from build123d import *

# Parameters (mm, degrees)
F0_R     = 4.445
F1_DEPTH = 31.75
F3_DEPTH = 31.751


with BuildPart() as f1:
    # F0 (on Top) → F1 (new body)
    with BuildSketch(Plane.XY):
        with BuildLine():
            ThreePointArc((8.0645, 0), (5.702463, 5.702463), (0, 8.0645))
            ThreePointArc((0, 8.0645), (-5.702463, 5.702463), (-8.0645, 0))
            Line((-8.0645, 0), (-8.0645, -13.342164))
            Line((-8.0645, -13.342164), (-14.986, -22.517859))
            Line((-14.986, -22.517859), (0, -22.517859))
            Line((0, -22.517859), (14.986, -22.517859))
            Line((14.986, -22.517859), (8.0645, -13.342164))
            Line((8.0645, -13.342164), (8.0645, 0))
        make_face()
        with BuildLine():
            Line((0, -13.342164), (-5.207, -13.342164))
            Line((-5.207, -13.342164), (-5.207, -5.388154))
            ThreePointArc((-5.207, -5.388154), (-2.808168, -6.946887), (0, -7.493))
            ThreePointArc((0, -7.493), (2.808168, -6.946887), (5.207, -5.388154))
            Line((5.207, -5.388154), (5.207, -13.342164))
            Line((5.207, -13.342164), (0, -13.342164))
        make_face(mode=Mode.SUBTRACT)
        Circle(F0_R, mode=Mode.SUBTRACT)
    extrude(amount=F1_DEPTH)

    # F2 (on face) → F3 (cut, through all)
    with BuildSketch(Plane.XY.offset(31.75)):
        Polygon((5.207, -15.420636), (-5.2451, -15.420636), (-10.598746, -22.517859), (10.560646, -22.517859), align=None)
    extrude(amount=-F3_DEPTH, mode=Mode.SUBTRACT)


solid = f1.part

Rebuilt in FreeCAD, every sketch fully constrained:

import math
import FreeCAD as App
import Part
import Sketcher
from FreeCAD import Vector
Q = App.Units.Quantity

doc = App.newDocument("Part")
params = doc.addObject("Spreadsheet::Sheet", "Params")
for row, (alias, value) in enumerate([
    ("sketch1_diameter", "0.35 in"),
    ("sketch1_radius", "0.2950001 in"),
    ("sketch1_width", "1.18 in"),
    ("sketch1_width2", "0.41 in"),
    ("pad1_length", "1.25 in"),
    ("sketch2_length", "0.35 in"),
], start=1):
    params.set(f"A{row}", alias)
    params.set(f"B{row}", "=" + value)
    params.setAlias(f"B{row}", alias)

body = doc.addObject("PartDesign::Body", "Body")

sketch1 = body.newObject("Sketcher::SketchObject", "Sketch")
sketch1.AttachmentSupport = (doc.getObject("XY_Plane"), [""])
sketch1.MapMode = "FlatFace"
sketch1.addGeometry([
    Part.ArcOfCircle(Part.Circle(Vector(0, 0, 0), Vector(0, 0, 1), 8.1), math.radians(0), math.radians(90)),
    Part.ArcOfCircle(Part.Circle(Vector(0, 0, 0), Vector(0, 0, 1), 8.1), math.radians(90), math.radians(180)),
    Part.LineSegment(Vector(-8.1, 0, 0), Vector(-8.1, -13.3, 0)),
    Part.LineSegment(Vector(-8.1, -13.3, 0), Vector(-15, -22.5, 0)),
    Part.LineSegment(Vector(-15, -22.5, 0), Vector(15, -22.5, 0)),
    Part.LineSegment(Vector(15, -22.5, 0), Vector(8.1, -13.3, 0)),
    Part.LineSegment(Vector(8.1, -13.3, 0), Vector(8.1, 0, 0)),
    Part.LineSegment(Vector(5.2, -13.3, 0), Vector(-5.2, -13.3, 0)),
    Part.LineSegment(Vector(-5.2, -13.3, 0), Vector(-5.2, -5.4, 0)),
    Part.ArcOfCircle(Part.Circle(Vector(0, 0, 0), Vector(0, 0, 1), 7.5), math.radians(-134), math.radians(-90)),
    Part.ArcOfCircle(Part.Circle(Vector(0, 0, 0), Vector(0, 0, 1), 7.5), math.radians(-90), math.radians(-46)),
    Part.LineSegment(Vector(5.2, -5.4, 0), Vector(5.2, -13.3, 0)),
    Part.Circle(Vector(0, 0, 0), Vector(0, 0, 1), 4.4),
], False)
sketch1.addConstraint([
    Sketcher.Constraint("Tangent", 0, 2, 1, 1),
    Sketcher.Constraint("Tangent", 1, 2, 2, 1),
    Sketcher.Constraint("Coincident", 2, 2, 3, 1),
    Sketcher.Constraint("Coincident", 3, 2, 4, 1),
    Sketcher.Constraint("Coincident", 4, 2, 5, 1),
    Sketcher.Constraint("Coincident", 5, 2, 6, 1),
    Sketcher.Constraint("Tangent", 6, 2, 0, 1),
    Sketcher.Constraint("Coincident", 7, 2, 8, 1),
    Sketcher.Constraint("Coincident", 8, 2, 9, 1),
    Sketcher.Constraint("Tangent", 9, 2, 10, 1),
    Sketcher.Constraint("Coincident", 10, 2, 11, 1),
    Sketcher.Constraint("Coincident", 11, 2, 7, 1),
    Sketcher.Constraint("Vertical", 2),
    Sketcher.Constraint("Horizontal", 4),
    Sketcher.Constraint("Vertical", 6),
    Sketcher.Constraint("Horizontal", 7),
    Sketcher.Constraint("Vertical", 8),
    Sketcher.Constraint("Vertical", 11),
    Sketcher.Constraint("Coincident", 0, 3, -1, 1),
    Sketcher.Constraint("Coincident", 9, 3, -1, 1),
    Sketcher.Constraint("Coincident", 12, 3, -1, 1),
    Sketcher.Constraint("Equal", 0, 1),
    Sketcher.Constraint("Equal", 9, 10),
    Sketcher.Constraint("PointOnObject", 0, 2, -2),
    Sketcher.Constraint("PointOnObject", 9, 2, -2),
    Sketcher.Constraint("Horizontal", 2, 2, 5, 2),
    Sketcher.Constraint("Horizontal", 5, 2, 7, 2),
    Sketcher.Constraint("Horizontal", 8, 2, 10, 2),
    Sketcher.Constraint("Equal", 3, 5),
    Sketcher.Constraint("Diameter", 12, Q("0.35 in")),
    Sketcher.Constraint("Radius", 9, Q("0.2950001 in")),
    Sketcher.Constraint("DistanceX", 4, 1, 4, 2, Q("1.18 in")),
    Sketcher.Constraint("DistanceX", 7, 2, 7, 1, Q("0.41 in")),
    Sketcher.Constraint("Radius", 0, Q("0.3175 in")),
    Sketcher.Constraint("Distance", 3, Q("0.4525 in")),
    Sketcher.Constraint("DistanceY", 8, 1, 8, 2, 7.95401),
])
sketch1.setExpression("Constraints[29]", "Params.sketch1_diameter")
sketch1.setExpression("Constraints[30]", "Params.sketch1_radius")
sketch1.setExpression("Constraints[31]", "Params.sketch1_width")
sketch1.setExpression("Constraints[32]", "Params.sketch1_width2")
pad1 = body.newObject("PartDesign::Pad", "Pad")
pad1.Profile = sketch1
pad1.setExpression("Length", "Params.pad1_length")

sketch2 = body.newObject("Sketcher::SketchObject", "Sketch001")
sketch2.AttachmentSupport = (doc.getObject("XY_Plane"), [""])
sketch2.MapMode = "FlatFace"
sketch2.AttachmentOffset = App.Placement(Vector(0, 0, 1.25 * 25.4), App.Rotation())
sketch2.addGeometry([
    Part.LineSegment(Vector(5, -15, 0), Vector(-5, -15, 0)),
    Part.LineSegment(Vector(-5, -15, 0), Vector(-11, -23, 0)),
    Part.LineSegment(Vector(-11, -23, 0), Vector(11, -23, 0)),
    Part.LineSegment(Vector(11, -23, 0), Vector(5, -15, 0)),
], False)
sketch2.addConstraint([
    Sketcher.Constraint("Coincident", 0, 2, 1, 1),
    Sketcher.Constraint("Coincident", 1, 2, 2, 1),
    Sketcher.Constraint("Coincident", 2, 2, 3, 1),
    Sketcher.Constraint("Coincident", 3, 2, 0, 1),
    Sketcher.Constraint("Horizontal", 0),
    Sketcher.Constraint("Horizontal", 2),
    Sketcher.Constraint("Equal", 1, 3),
    Sketcher.Constraint("Distance", 1, Q("0.35 in")),
    Sketcher.Constraint("DistanceX", 0, 2, 0, 1, Q("0.4115 in")),
    Sketcher.Constraint("DistanceX", -1, 1, 3, 2, Q("0.205 in")),
    Sketcher.Constraint("DistanceX", 2, 1, 2, 2, 21.159392),
    Sketcher.Constraint("DistanceY", 1, 2, -1, 1, 22.517859),
])
sketch2.setExpression("Constraints[7]", "Params.sketch2_length")
pocket1 = body.newObject("PartDesign::Pocket", "Pocket")
pocket1.Profile = sketch2
pocket1.Type = "ThroughAll"

doc.recompute()
